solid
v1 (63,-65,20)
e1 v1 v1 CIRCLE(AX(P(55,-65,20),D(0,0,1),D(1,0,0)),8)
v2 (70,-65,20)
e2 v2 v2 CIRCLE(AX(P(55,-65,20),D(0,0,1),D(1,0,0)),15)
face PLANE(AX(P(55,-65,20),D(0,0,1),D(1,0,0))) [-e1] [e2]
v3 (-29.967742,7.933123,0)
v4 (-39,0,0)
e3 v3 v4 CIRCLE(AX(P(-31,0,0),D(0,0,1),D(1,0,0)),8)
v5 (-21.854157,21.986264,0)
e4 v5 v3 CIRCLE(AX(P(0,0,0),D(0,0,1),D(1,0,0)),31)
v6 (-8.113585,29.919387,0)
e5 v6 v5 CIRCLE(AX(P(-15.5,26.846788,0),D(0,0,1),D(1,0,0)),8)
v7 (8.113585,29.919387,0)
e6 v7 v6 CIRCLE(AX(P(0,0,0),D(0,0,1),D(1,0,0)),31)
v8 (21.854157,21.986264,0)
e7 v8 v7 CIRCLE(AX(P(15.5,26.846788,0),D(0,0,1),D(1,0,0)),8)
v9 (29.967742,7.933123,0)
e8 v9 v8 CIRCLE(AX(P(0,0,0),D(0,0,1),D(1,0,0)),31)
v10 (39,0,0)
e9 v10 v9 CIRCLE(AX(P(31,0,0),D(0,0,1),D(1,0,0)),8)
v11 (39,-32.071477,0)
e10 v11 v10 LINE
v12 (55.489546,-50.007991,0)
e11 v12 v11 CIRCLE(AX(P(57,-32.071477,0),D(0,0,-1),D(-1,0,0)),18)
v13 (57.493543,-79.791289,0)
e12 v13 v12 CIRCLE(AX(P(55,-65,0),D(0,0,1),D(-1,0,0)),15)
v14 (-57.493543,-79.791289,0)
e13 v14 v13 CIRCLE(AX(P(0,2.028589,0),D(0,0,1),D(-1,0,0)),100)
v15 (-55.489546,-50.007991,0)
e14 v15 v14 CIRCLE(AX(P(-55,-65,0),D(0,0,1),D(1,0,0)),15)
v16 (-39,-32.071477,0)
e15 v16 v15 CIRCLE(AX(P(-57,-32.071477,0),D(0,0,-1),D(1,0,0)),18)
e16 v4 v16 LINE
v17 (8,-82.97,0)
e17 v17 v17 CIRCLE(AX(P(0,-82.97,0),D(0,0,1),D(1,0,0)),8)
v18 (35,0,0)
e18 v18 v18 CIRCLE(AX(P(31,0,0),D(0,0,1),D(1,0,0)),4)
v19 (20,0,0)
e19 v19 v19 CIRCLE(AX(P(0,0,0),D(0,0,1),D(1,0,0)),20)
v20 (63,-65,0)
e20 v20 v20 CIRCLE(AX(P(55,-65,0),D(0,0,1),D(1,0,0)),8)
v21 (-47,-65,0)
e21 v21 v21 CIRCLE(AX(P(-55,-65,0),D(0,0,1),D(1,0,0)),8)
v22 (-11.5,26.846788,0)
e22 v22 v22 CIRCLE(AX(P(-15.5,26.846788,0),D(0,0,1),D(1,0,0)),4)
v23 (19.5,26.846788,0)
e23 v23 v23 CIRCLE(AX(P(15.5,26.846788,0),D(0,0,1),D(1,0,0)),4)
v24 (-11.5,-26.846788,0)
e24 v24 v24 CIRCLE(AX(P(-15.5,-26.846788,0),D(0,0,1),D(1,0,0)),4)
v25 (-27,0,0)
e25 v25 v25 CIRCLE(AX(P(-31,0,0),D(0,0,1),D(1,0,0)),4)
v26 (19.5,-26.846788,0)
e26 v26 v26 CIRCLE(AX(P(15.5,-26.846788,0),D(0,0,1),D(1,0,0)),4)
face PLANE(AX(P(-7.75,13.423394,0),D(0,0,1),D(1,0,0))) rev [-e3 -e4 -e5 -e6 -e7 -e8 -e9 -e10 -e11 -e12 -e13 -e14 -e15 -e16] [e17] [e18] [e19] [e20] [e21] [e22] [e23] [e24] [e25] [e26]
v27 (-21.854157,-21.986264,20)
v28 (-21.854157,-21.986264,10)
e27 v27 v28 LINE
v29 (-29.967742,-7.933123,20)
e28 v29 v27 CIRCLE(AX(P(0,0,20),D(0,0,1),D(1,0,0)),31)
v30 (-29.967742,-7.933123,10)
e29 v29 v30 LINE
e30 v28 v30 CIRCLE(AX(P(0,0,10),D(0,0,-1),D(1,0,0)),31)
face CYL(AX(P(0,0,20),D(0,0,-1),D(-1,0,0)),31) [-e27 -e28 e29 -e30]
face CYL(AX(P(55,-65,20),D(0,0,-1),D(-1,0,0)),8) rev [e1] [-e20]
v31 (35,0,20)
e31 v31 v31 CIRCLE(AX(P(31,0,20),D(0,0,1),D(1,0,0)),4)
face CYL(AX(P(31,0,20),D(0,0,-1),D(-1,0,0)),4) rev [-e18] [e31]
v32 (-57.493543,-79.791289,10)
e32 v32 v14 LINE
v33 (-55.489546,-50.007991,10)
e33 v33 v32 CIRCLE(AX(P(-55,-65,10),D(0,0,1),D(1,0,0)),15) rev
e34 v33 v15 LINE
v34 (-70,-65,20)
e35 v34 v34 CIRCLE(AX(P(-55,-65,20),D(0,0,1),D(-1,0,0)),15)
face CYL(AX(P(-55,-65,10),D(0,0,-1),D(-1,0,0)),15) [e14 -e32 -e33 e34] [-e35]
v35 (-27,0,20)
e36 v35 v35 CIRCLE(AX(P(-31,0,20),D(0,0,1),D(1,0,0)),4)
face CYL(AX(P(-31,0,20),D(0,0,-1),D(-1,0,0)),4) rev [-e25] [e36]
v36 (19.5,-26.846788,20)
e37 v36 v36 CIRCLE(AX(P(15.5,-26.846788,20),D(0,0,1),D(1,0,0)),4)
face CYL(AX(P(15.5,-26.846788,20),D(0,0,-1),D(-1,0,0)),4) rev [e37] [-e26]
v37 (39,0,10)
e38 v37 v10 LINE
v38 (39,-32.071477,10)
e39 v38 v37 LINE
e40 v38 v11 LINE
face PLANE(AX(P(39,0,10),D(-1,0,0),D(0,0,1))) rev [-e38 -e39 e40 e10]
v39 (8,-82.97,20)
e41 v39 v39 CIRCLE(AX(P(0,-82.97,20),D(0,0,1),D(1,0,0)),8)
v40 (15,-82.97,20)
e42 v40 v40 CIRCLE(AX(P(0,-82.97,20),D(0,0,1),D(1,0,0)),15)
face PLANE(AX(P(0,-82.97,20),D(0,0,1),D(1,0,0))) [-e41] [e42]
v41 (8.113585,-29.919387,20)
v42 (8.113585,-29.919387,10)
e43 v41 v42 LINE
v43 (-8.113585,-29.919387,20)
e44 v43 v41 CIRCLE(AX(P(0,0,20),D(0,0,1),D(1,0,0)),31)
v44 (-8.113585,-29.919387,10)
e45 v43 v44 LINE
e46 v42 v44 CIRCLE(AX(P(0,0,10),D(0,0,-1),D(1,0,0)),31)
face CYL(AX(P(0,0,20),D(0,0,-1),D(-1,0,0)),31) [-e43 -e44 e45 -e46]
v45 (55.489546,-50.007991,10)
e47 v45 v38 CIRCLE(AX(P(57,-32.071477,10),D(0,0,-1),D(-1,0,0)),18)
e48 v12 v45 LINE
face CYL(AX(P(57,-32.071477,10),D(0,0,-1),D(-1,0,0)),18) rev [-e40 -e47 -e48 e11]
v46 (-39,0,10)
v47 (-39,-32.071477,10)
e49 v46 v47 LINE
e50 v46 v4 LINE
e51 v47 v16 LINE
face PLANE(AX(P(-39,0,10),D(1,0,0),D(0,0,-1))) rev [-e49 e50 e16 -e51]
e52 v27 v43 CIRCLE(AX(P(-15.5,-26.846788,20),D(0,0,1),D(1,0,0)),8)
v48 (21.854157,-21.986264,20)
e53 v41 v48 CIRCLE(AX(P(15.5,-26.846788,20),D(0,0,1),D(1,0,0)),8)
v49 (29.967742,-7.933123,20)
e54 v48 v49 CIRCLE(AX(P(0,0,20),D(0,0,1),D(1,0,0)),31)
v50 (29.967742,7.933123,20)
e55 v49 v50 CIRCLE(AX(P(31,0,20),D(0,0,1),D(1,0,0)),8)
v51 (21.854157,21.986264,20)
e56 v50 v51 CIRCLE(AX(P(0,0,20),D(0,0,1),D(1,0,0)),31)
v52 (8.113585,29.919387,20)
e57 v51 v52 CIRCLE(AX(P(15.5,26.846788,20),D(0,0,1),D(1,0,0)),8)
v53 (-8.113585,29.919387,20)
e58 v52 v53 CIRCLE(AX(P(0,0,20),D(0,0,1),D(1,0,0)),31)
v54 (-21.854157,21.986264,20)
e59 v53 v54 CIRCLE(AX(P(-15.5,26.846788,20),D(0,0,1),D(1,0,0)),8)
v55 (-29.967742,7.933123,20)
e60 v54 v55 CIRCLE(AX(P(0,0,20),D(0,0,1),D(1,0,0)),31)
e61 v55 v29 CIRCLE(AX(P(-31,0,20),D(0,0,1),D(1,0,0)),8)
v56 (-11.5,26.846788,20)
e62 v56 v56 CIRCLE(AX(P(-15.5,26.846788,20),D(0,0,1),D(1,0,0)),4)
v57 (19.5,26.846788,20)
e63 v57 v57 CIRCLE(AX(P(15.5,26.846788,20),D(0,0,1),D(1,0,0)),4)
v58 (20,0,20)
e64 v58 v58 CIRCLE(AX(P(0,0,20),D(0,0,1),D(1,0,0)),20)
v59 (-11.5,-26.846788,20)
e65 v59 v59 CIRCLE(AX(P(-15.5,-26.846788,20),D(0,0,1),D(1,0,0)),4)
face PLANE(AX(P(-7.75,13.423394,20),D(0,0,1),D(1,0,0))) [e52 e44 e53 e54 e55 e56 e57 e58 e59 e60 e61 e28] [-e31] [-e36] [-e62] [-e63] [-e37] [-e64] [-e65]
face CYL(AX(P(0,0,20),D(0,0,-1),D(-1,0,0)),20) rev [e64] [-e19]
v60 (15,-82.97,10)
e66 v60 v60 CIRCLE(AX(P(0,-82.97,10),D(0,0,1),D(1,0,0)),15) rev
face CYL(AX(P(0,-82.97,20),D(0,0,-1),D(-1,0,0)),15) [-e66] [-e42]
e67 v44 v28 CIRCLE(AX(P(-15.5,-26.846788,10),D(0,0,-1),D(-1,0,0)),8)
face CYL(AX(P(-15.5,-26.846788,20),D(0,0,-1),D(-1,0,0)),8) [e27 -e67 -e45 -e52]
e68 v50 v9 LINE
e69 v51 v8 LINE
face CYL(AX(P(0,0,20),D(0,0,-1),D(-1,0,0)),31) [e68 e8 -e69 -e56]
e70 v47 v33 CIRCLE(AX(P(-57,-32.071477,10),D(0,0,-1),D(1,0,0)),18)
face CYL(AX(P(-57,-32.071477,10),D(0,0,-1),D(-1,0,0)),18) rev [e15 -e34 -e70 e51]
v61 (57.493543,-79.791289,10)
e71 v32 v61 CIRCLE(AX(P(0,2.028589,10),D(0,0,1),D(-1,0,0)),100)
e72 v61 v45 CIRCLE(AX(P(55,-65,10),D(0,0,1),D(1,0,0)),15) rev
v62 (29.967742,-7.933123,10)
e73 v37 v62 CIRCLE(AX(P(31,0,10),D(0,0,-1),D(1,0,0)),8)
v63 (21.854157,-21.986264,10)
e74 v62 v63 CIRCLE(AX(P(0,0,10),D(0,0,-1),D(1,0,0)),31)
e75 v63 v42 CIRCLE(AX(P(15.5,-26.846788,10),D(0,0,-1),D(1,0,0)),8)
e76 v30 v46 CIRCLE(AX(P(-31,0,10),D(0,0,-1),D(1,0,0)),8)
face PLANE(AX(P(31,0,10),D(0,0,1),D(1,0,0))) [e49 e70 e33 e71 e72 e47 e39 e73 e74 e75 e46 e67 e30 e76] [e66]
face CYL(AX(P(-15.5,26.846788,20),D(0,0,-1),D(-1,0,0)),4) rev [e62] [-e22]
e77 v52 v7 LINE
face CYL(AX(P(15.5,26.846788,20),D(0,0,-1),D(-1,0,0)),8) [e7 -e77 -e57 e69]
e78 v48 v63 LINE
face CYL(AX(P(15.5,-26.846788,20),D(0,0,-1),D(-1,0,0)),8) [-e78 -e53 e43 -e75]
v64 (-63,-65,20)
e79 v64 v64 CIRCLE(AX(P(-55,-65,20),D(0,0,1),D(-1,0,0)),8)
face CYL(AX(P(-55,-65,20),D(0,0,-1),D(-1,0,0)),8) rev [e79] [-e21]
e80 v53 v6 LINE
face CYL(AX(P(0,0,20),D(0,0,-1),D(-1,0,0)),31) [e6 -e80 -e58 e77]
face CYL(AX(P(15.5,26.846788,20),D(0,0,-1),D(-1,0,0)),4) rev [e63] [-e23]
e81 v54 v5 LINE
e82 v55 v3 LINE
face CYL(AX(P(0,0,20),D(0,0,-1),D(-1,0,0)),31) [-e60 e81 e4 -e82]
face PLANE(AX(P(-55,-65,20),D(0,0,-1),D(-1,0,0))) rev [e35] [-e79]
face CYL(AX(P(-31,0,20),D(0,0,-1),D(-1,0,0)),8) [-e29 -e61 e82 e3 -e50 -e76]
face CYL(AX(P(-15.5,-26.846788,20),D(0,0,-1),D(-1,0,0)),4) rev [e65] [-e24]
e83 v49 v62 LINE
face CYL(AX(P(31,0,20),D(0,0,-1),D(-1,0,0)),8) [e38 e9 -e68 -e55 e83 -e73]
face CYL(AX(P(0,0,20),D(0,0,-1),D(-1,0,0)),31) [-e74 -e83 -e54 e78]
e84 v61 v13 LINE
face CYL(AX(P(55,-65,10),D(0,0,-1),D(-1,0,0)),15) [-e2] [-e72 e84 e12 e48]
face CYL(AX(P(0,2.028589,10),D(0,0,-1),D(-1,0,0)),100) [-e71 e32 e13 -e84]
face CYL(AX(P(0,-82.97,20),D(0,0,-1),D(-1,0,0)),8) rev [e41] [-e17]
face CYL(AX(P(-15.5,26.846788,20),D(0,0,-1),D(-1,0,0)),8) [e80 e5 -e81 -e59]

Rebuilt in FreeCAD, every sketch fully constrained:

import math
import FreeCAD as App
import Part
import Sketcher

doc = App.newDocument("Part")
body = doc.addObject("PartDesign::Body", "Body")

# Sketch on XY plane
sketch1 = body.newObject("Sketcher::SketchObject", "Sketch")
sketch1.AttachmentSupport = (doc.getObject("XY_Plane"), [""])
sketch1.MapMode = "FlatFace"
sketch1.addGeometry([
    Part.Circle(App.Vector(0, -82.97, 0), App.Vector(0, 0, 1), 15),
    Part.Circle(App.Vector(0, -82.97, 0), App.Vector(0, 0, 1), 8),
], False)
sketch1.addConstraint([
    Sketcher.Constraint("Coincident", 1, 3, 0, 3),
    Sketcher.Constraint("PointOnObject", 0, 3, -2),
    Sketcher.Constraint("Diameter", 0, 30.0),
    Sketcher.Constraint("Diameter", 1, 16.0),
    Sketcher.Constraint("DistanceY", 0, 3, -1, 1, 82.97),
])
pad1 = body.newObject("PartDesign::Pad", "Pad")
pad1.Profile = sketch1
pad1.Length = 20
body2 = doc.addObject("PartDesign::Body", "Body001")

# Sketch on XY plane
sketch2 = body2.newObject("Sketcher::SketchObject", "Sketch001")
sketch2.AttachmentSupport = (doc.getObject("XY_Plane001"), [""])
sketch2.MapMode = "FlatFace"
sketch2.addGeometry([
    Part.Circle(App.Vector(55, -65, 0), App.Vector(0, 0, 1), 15),
    Part.Circle(App.Vector(55, -65, 0), App.Vector(0, 0, 1), 8),
], False)
sketch2.addConstraint([
    Sketcher.Constraint("Coincident", 1, 3, 0, 3),
    Sketcher.Constraint("Diameter", 0, 30.0),
    Sketcher.Constraint("Diameter", 1, 16.0),
    Sketcher.Constraint("DistanceX", -1, 1, 0, 3, 55.0),
    Sketcher.Constraint("DistanceY", 0, 3, -1, 1, 65.0),
])
pad2 = body2.newObject("PartDesign::Pad", "Pad001")
pad2.Profile = sketch2
pad2.Length = 20
body3 = doc.addObject("PartDesign::Body", "Body002")

# Sketch on XY plane
sketch3 = body3.newObject("Sketcher::SketchObject", "Sketch002")
sketch3.AttachmentSupport = (doc.getObject("XY_Plane002"), [""])
sketch3.MapMode = "FlatFace"
sketch3.addGeometry([
    Part.Circle(App.Vector(-55, -65, 0), App.Vector(0, 0, 1), 15),
    Part.Circle(App.Vector(-55, -65, 0), App.Vector(0, 0, 1), 8),
], False)
sketch3.addConstraint([
    Sketcher.Constraint("Coincident", 1, 3, 0, 3),
    Sketcher.Constraint("Diameter", 0, 30.0),
    Sketcher.Constraint("Diameter", 1, 16.0),
    Sketcher.Constraint("DistanceX", 0, 3, -1, 1, 55.0),
    Sketcher.Constraint("DistanceY", 0, 3, -1, 1, 65.0),
])
pad3 = body3.newObject("PartDesign::Pad", "Pad002")
pad3.Profile = sketch3
pad3.Length = 20
body4 = doc.addObject("PartDesign::Body", "Body003")

# Sketch on XY plane
sketch4 = body4.newObject("Sketcher::SketchObject", "Sketch003")
sketch4.AttachmentSupport = (doc.getObject("XY_Plane003"), [""])
sketch4.MapMode = "FlatFace"
sketch4.addGeometry([
    Part.ArcOfCircle(Part.Circle(App.Vector(0, 0, 0), App.Vector(0, 0, 1), 31), math.radians(134.827348), math.radians(165.172652)),  # 0
    Part.ArcOfCircle(Part.Circle(App.Vector(-31, 0, 0), App.Vector(0, 0, 1), 8), math.radians(82.586326), math.radians(277.413674)),  # 1
    Part.ArcOfCircle(Part.Circle(App.Vector(0, 0, 0), App.Vector(0, 0, 1), 31), math.radians(-165.172652), math.radians(-134.827348)),  # 2
    Part.ArcOfCircle(Part.Circle(App.Vector(-15.5, -26.846788, 0), App.Vector(0, 0, 1), 8), math.radians(142.586326), math.radians(337.413674)),  # 3
    Part.ArcOfCircle(Part.Circle(App.Vector(0, 0, 0), App.Vector(0, 0, 1), 31), math.radians(-105.172652), math.radians(-74.827348)),  # 4
    Part.ArcOfCircle(Part.Circle(App.Vector(15.5, -26.846788, 0), App.Vector(0, 0, 1), 8), math.radians(-157.413674), math.radians(37.413674)),  # 5
    Part.ArcOfCircle(Part.Circle(App.Vector(0, 0, 0), App.Vector(0, 0, 1), 31), math.radians(-45.172652), math.radians(-14.827348)),  # 6
    Part.ArcOfCircle(Part.Circle(App.Vector(31, 0, 0), App.Vector(0, 0, 1), 8), math.radians(-97.413674), math.radians(97.413674)),  # 7
    Part.ArcOfCircle(Part.Circle(App.Vector(0, 0, 0), App.Vector(0, 0, 1), 31), math.radians(14.827348), math.radians(45.172652)),  # 8
    Part.ArcOfCircle(Part.Circle(App.Vector(15.5, 26.846788, 0), App.Vector(0, 0, 1), 8), math.radians(-37.413674), math.radians(157.413674)),  # 9
    Part.ArcOfCircle(Part.Circle(App.Vector(0, 0, 0), App.Vector(0, 0, 1), 31), math.radians(74.827348), math.radians(105.172652)),  # 10
    Part.ArcOfCircle(Part.Circle(App.Vector(-15.5, 26.846788, 0), App.Vector(0, 0, 1), 8), math.radians(22.586326), math.radians(217.413674)),  # 11
    Part.Circle(App.Vector(-15.5, -26.846788, 0), App.Vector(0, 0, 1), 4),  # 12
    Part.Circle(App.Vector(15.5, -26.846788, 0), App.Vector(0, 0, 1), 4),  # 13
    Part.Circle(App.Vector(-31, 0, 0), App.Vector(0, 0, 1), 4),  # 14
    Part.Circle(App.Vector(-15.5, 26.846788, 0), App.Vector(0, 0, 1), 4),  # 15
    Part.Circle(App.Vector(0, 0, 0), App.Vector(0, 0, 1), 20),  # 16
    Part.Circle(App.Vector(31, 0, 0), App.Vector(0, 0, 1), 4),  # 17
    Part.Circle(App.Vector(15.5, 26.846788, 0), App.Vector(0, 0, 1), 4),  # 18
], False)
sketch4.addConstraint([
    Sketcher.Constraint("Coincident", 0, 2, 1, 1),
    Sketcher.Constraint("Coincident", 1, 2, 2, 1),
    Sketcher.Constraint("Coincident", 2, 2, 3, 1),
    Sketcher.Constraint("Coincident", 3, 2, 4, 1),
    Sketcher.Constraint("Coincident", 4, 2, 5, 1),
    Sketcher.Constraint("Coincident", 5, 2, 6, 1),
    Sketcher.Constraint("Coincident", 6, 2, 7, 1),
    Sketcher.Constraint("Coincident", 7, 2, 8, 1),
    Sketcher.Constraint("Coincident", 8, 2, 9, 1),
    Sketcher.Constraint("Coincident", 9, 2, 10, 1),
    Sketcher.Constraint("Coincident", 10, 2, 11, 1),
    Sketcher.Constraint("Coincident", 11, 2, 0, 1),
    Sketcher.Constraint("Coincident", 0, 3, -1, 1),
    Sketcher.Constraint("Coincident", 2, 3, -1, 1),
    Sketcher.Constraint("Coincident", 4, 3, -1, 1),
    Sketcher.Constraint("Coincident", 6, 3, -1, 1),
    Sketcher.Constraint("Coincident", 8, 3, -1, 1),
    Sketcher.Constraint("Coincident", 10, 3, -1, 1),
    Sketcher.Constraint("Coincident", 16, 3, -1, 1),
    Sketcher.Constraint("Coincident", 12, 3, 3, 3),
    Sketcher.Constraint("Coincident", 13, 3, 5, 3),
    Sketcher.Constraint("Coincident", 14, 3, 1, 3),
    Sketcher.Constraint("Coincident", 15, 3, 11, 3),
    Sketcher.Constraint("Coincident", 17, 3, 7, 3),
    Sketcher.Constraint("Coincident", 18, 3, 9, 3),
    Sketcher.Constraint("Equal", 0, 2),
    Sketcher.Constraint("Equal", 1, 3),
    Sketcher.Constraint("Equal", 2, 4),
    Sketcher.Constraint("Equal", 3, 5),
    Sketcher.Constraint("Equal", 4, 6),
    Sketcher.Constraint("Equal", 5, 7),
    Sketcher.Constraint("Equal", 6, 8),
    Sketcher.Constraint("Equal", 7, 9),
    Sketcher.Constraint("Equal", 8, 10),
    Sketcher.Constraint("Equal", 9, 11),
    Sketcher.Constraint("Equal", 12, 13),
    Sketcher.Constraint("Equal", 13, 14),
    Sketcher.Constraint("Equal", 14, 15),
    Sketcher.Constraint("Equal", 15, 17),
    Sketcher.Constraint("Equal", 17, 18),
    Sketcher.Constraint("Symmetric", 1, 3, 7, 3, -1, 1),
    Sketcher.Constraint("Symmetric", 3, 3, 9, 3, -1, 1),
    Sketcher.Constraint("Symmetric", 5, 3, 11, 3, -1, 1),
    Sketcher.Constraint("Symmetric", 3, 3, 5, 3, -2),
    Sketcher.Constraint("PointOnObject", 1, 3, -1),
    Sketcher.Constraint("Diameter", 12, 8.0),
    Sketcher.Constraint("Diameter", 16, 40.0),
    Sketcher.Constraint("Radius", 0, 31.0),
    Sketcher.Constraint("Radius", 1, 8.0),
    Sketcher.Constraint("DistanceX", 1, 3, -1, 1, 31.0),
    Sketcher.Constraint("DistanceX", 3, 3, 5, 3, 31.0),
    Sketcher.Constraint("DistanceY", 3, 2, 3, 3, 3.0726),
])
pad4 = body4.newObject("PartDesign::Pad", "Pad003")
pad4.Profile = sketch4
pad4.Length = 20
body.AllowCompound = True
doc.recompute()

boolean = body.newObject("PartDesign::Boolean", "Boolean")
boolean.Type = "Fuse"
boolean.addObjects([body2])
doc.recompute()

boolean2 = body.newObject("PartDesign::Boolean", "Boolean001")
boolean2.Type = "Fuse"
boolean2.addObjects([body3])
doc.recompute()

boolean3 = body.newObject("PartDesign::Boolean", "Boolean002")
boolean3.Type = "Fuse"
boolean3.addObjects([body4])

# Sketch on XY plane
sketch5 = body.newObject("Sketcher::SketchObject", "Sketch004")
sketch5.AttachmentSupport = (doc.getObject("XY_Plane"), [""])
sketch5.MapMode = "FlatFace"
sketch5.addGeometry([
    Part.LineSegment(App.Vector(-39, 0, 0), App.Vector(-39, -32.071477, 0)),  # 0
    Part.ArcOfCircle(Part.Circle(App.Vector(-57, -32.071477, 0), App.Vector(0, 0, 1), 18), math.radians(-87.862106), math.radians(0)),  # 1
    Part.ArcOfCircle(Part.Circle(App.Vector(-55, -65, 0), App.Vector(0, 0, 1), 15), math.radians(95.081218), math.radians(260.430944)),  # 2
    Part.ArcOfCircle(Part.Circle(App.Vector(0, 2.028589, 0), App.Vector(0, 0, 1), 100), math.radians(-125.095111), math.radians(-54.904889)),  # 3
    Part.ArcOfCircle(Part.Circle(App.Vector(55, -65, 0), App.Vector(0, 0, 1), 15), math.radians(-80.430944), math.radians(84.918782)),  # 4
    Part.ArcOfCircle(Part.Circle(App.Vector(57, -32.071477, 0), App.Vector(0, 0, 1), 18), math.radians(180), math.radians(267.862106)),  # 5
    Part.LineSegment(App.Vector(39, -32.071477, 0), App.Vector(39, 0, 0)),  # 6
    Part.ArcOfCircle(Part.Circle(App.Vector(31, 0, 0), App.Vector(0, 0, 1), 8), math.radians(-97.413674), math.radians(0)),  # 7
    Part.ArcOfCircle(Part.Circle(App.Vector(0, 0, 0), App.Vector(0, 0, 1), 31), math.radians(-45.172652), math.radians(-14.827348)),  # 8
    Part.ArcOfCircle(Part.Circle(App.Vector(15.5, -26.846788, 0), App.Vector(0, 0, 1), 8), math.radians(-157.413674), math.radians(37.413674)),  # 9
    Part.ArcOfCircle(Part.Circle(App.Vector(0, 0, 0), App.Vector(0, 0, 1), 31), math.radians(-105.172652), math.radians(-74.827348)),  # 10
    Part.ArcOfCircle(Part.Circle(App.Vector(-15.5, -26.846788, 0), App.Vector(0, 0, 1), 8), math.radians(142.586326), math.radians(337.413674)),  # 11
    Part.ArcOfCircle(Part.Circle(App.Vector(0, 0, 0), App.Vector(0, 0, 1), 31), math.radians(-165.172652), math.radians(-134.827348)),  # 12
    Part.ArcOfCircle(Part.Circle(App.Vector(-31, 0, 0), App.Vector(0, 0, 1), 8), math.radians(-180), math.radians(-82.586326)),  # 13
], False)
sketch5.addConstraint([
    Sketcher.Constraint("Tangent", 0, 2, 1, 2),
    Sketcher.Constraint("Coincident", 1, 1, 2, 1),
    Sketcher.Constraint("Coincident", 2, 2, 3, 1),
    Sketcher.Constraint("Coincident", 3, 2, 4, 1),
    Sketcher.Constraint("Coincident", 4, 2, 5, 2),
    Sketcher.Constraint("Tangent", 5, 1, 6, 1),
    Sketcher.Constraint("Tangent", 6, 2, 7, 2),
    Sketcher.Constraint("Coincident", 7, 1, 8, 2),
    Sketcher.Constraint("Coincident", 8, 1, 9, 2),
    Sketcher.Constraint("Coincident", 9, 1, 10, 2),
    Sketcher.Constraint("Coincident", 10, 1, 11, 2),
    Sketcher.Constraint("Coincident", 11, 1, 12, 2),
    Sketcher.Constraint("Coincident", 12, 1, 13, 2),
    Sketcher.Constraint("Tangent", 13, 1, 0, 1),
    Sketcher.Constraint("Vertical", 0),
    Sketcher.Constraint("Vertical", 6),
    Sketcher.Constraint("Coincident", 8, 3, -1, 1),
    Sketcher.Constraint("Coincident", 10, 3, -1, 1),
    Sketcher.Constraint("Coincident", 12, 3, -1, 1),
    Sketcher.Constraint("Equal", 2, 4),
    Sketcher.Constraint("Equal", 1, 5),
    Sketcher.Constraint("Equal", 7, 9),
    Sketcher.Constraint("Equal", 8, 10),
    Sketcher.Constraint("Equal", 9, 11),
    Sketcher.Constraint("Equal", 10, 12),
    Sketcher.Constraint("Equal", 11, 13),
    Sketcher.Constraint("Symmetric", 7, 3, 13, 3, -1, 1),
    Sketcher.Constraint("Symmetric", 2, 3, 4, 3, -2),
    Sketcher.Constraint("Symmetric", 9, 3, 11, 3, -2),
    Sketcher.Constraint("PointOnObject", 3, 3, -2),
    Sketcher.Constraint("PointOnObject", 7, 3, -1),
    Sketcher.Constraint("Horizontal", 1, 3, 5, 3),
    Sketcher.Constraint("Radius", 1, 18.0),
    Sketcher.Constraint("Radius", 2, 15.0),
    Sketcher.Constraint("Radius", 3, 100.0),
    Sketcher.Constraint("Radius", 7, 8.0),
    Sketcher.Constraint("Radius", 8, 31.0),
    Sketcher.Constraint("DistanceX", 1, 3, -1, 1, 57.0),
    Sketcher.Constraint("DistanceX", 2, 3, -1, 1, 55.0),
    Sketcher.Constraint("DistanceY", 2, 3, -1, 1, 65.0),
    Sketcher.Constraint("DistanceX", 11, 3, 9, 3, 31.0),
    Sketcher.Constraint("DistanceY", 2, 2, 11, 3, 52.944502),
    Sketcher.Constraint("DistanceY", 9, 1, 9, 3, 3.0726),
    Sketcher.Constraint("DistanceY", 0, 2, 0, 1, 32.071477),
])
pad5 = body.newObject("PartDesign::Pad", "Pad004")
pad5.Profile = sketch5
pad5.Length = 10

# Sketch on XY plane
sketch6 = body.newObject("Sketcher::SketchObject", "Sketch005")
sketch6.AttachmentSupport = (doc.getObject("XY_Plane"), [""])
sketch6.MapMode = "FlatFace"
sketch6.addGeometry([
    Part.Circle(App.Vector(-55, -65, 0), App.Vector(0, 0, 1), 8),
    Part.Circle(App.Vector(0, -82.97, 0), App.Vector(0, 0, 1), 8),
    Part.Circle(App.Vector(55, -65, 0), App.Vector(0, 0, 1), 8),
], False)
sketch6.addConstraint([
    Sketcher.Constraint("Equal", 0, 1),
    Sketcher.Constraint("Equal", 1, 2),
    Sketcher.Constraint("Symmetric", 0, 3, 2, 3, -2),
    Sketcher.Constraint("PointOnObject", 1, 3, -2),
    Sketcher.Constraint("Diameter", 0, 16.0),
    Sketcher.Constraint("DistanceX", 0, 3, -1, 1, 55.0),
    Sketcher.Constraint("DistanceY", 0, 3, -1, 1, 65.0),
    Sketcher.Constraint("DistanceY", 1, 3, -1, 1, 82.97),
])
pocket1 = body.newObject("PartDesign::Pocket", "Pocket")
pocket1.Profile = sketch6
pocket1.Length = 10
pocket1.Reversed = True

doc.recompute()
